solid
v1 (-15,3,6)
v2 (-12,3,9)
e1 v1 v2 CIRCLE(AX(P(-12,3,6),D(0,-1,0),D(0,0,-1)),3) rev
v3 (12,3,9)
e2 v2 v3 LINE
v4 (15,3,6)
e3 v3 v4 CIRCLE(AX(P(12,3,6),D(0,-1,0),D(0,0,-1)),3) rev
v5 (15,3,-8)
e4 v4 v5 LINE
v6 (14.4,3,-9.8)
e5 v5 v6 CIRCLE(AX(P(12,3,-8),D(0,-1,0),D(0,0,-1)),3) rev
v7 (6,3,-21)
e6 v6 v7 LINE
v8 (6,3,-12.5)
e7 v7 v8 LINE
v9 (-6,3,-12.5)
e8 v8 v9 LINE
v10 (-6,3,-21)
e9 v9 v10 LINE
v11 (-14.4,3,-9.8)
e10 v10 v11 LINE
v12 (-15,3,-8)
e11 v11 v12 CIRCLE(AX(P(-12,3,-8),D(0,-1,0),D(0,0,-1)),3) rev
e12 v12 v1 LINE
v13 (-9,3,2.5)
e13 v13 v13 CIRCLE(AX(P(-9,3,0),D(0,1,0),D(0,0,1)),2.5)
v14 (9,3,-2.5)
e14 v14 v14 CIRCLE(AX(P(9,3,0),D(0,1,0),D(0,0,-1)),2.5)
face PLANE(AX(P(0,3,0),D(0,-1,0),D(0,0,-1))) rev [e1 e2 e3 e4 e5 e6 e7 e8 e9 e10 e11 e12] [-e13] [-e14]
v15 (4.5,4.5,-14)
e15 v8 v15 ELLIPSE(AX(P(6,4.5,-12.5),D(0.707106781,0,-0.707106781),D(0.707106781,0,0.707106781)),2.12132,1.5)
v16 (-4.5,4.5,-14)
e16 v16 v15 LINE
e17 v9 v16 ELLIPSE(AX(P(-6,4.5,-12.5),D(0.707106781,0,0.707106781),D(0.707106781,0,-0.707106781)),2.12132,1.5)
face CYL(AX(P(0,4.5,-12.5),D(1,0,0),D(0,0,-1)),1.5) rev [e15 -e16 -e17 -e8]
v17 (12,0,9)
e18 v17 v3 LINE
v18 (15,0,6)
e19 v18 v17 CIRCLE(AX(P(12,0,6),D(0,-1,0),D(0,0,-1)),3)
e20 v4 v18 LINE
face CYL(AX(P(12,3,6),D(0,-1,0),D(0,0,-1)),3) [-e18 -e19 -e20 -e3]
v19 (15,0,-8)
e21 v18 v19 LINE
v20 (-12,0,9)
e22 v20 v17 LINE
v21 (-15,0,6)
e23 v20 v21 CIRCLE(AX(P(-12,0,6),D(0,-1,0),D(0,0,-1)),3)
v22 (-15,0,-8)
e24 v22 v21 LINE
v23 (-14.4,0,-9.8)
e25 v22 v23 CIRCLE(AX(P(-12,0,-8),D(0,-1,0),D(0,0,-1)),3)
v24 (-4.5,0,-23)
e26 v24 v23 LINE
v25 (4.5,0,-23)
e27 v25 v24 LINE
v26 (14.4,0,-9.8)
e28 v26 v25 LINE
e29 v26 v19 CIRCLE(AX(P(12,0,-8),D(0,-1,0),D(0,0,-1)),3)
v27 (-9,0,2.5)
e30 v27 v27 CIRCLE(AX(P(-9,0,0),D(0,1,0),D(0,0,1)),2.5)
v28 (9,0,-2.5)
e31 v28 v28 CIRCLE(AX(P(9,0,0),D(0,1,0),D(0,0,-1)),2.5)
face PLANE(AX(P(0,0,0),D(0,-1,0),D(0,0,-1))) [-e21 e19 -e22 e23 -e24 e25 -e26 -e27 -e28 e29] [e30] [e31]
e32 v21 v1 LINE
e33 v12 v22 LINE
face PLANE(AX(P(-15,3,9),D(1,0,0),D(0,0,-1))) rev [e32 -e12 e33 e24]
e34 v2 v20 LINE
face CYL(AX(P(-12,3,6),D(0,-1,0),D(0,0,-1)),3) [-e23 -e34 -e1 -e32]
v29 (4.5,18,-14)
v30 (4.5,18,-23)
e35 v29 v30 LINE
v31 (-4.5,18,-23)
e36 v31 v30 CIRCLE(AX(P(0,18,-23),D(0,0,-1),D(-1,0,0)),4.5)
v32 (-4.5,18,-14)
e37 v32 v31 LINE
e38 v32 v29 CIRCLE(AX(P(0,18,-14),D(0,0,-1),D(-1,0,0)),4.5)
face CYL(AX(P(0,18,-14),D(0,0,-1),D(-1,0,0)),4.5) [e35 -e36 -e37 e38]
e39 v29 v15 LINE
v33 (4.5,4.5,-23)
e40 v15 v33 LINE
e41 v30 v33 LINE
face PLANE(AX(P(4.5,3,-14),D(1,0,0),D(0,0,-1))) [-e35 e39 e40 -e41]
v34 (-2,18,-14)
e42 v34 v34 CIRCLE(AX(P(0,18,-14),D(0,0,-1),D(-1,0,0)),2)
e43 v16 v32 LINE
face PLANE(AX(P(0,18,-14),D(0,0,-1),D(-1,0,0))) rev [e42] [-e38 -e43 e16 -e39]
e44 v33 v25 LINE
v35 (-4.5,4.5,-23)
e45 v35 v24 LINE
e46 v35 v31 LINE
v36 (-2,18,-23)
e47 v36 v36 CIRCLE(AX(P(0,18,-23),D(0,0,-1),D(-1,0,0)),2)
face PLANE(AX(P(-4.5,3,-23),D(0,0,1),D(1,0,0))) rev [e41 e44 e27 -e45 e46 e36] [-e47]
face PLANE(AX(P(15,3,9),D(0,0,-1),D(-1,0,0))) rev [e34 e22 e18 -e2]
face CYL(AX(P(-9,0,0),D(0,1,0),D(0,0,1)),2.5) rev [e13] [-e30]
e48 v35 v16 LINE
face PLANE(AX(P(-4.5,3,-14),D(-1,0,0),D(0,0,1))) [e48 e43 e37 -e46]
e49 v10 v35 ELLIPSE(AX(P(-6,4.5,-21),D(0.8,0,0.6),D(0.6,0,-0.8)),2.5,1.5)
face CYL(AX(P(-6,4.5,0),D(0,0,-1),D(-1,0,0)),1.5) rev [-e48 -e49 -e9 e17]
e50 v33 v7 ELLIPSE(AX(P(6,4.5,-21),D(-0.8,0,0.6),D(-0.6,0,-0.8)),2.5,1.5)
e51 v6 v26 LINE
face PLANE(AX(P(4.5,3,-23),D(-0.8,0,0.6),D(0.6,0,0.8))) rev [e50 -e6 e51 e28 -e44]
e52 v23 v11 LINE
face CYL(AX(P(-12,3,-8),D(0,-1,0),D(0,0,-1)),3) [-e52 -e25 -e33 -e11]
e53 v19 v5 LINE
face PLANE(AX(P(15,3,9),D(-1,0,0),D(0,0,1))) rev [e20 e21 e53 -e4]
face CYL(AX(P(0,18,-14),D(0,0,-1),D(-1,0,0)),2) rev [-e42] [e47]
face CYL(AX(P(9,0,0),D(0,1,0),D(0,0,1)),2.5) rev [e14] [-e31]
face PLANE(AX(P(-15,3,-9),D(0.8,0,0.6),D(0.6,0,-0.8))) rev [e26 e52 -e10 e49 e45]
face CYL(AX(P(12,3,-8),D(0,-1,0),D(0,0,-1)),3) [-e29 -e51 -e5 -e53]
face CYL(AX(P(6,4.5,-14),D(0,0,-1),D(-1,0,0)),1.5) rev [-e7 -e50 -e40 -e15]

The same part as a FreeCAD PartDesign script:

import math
import FreeCAD as App
import Part
import Sketcher
Q = App.Units.Quantity


def edges_at(feature, points):
    """Names of the edges that pass closest to the given points."""
    edges = feature.Shape.Edges
    near = lambda p: min(range(len(edges)), key=lambda i: edges[i].distToShape(Part.Vertex(*p))[0])
    return sorted({f"Edge{near(p) + 1}" for p in points})

doc = App.newDocument("Part")
body = doc.addObject("PartDesign::Body", "Body")

# Sketch on XZ plane
sketch1 = body.newObject("Sketcher::SketchObject", "Sketch")
sketch1.AttachmentSupport = (doc.getObject("XZ_Plane"), [""])
sketch1.MapMode = "FlatFace"
sketch1.addGeometry(Part.LineSegment(App.Vector(-4, -23, 0), App.Vector(-15, -9, 0)), False)
sketch1.addGeometry(Part.LineSegment(App.Vector(-15, -9, 0), App.Vector(-15, 9, 0)), False)
sketch1.addGeometry(Part.LineSegment(App.Vector(-15, 9, 0), App.Vector(15, 9, 0)), False)
sketch1.addGeometry(Part.LineSegment(App.Vector(15, 9, 0), App.Vector(15, -9, 0)), False)
sketch1.addGeometry(Part.LineSegment(App.Vector(15, -9, 0), App.Vector(4, -23, 0)), False)
sketch1.addGeometry(Part.LineSegment(App.Vector(4, -23, 0), App.Vector(-4, -23, 0)), False)
sketch1.addConstraint(Sketcher.Constraint("Coincident", 0, 2, 1, 1))
sketch1.addConstraint(Sketcher.Constraint("Coincident", 1, 2, 2, 1))
sketch1.addConstraint(Sketcher.Constraint("Coincident", 2, 2, 3, 1))
sketch1.addConstraint(Sketcher.Constraint("Coincident", 3, 2, 4, 1))
sketch1.addConstraint(Sketcher.Constraint("Coincident", 4, 2, 5, 1))
sketch1.addConstraint(Sketcher.Constraint("Coincident", 5, 2, 0, 1))
sketch1.addConstraint(Sketcher.Constraint("Vertical", 1))
sketch1.addConstraint(Sketcher.Constraint("Horizontal", 2))
sketch1.addConstraint(Sketcher.Constraint("Vertical", 3))
sketch1.addConstraint(Sketcher.Constraint("Horizontal", 5))
sketch1.addConstraint(Sketcher.Constraint("Symmetric", 0, 2, 2, 2, -1, 1))
sketch1.addConstraint(Sketcher.Constraint("Horizontal", 0, 2, 3, 2))
sketch1.addConstraint(Sketcher.Constraint("Equal", 0, 4))
sketch1.addConstraint(Sketcher.Constraint("DistanceX", 2, 1, 2, 2, Q("30 mm")))
sketch1.addConstraint(Sketcher.Constraint("DistanceX", 5, 2, 5, 1, Q("9 mm")))
sketch1.addConstraint(Sketcher.Constraint("DistanceY", 1, 1, 1, 2, Q("18 mm")))
sketch1.addConstraint(Sketcher.Constraint("DistanceY", 4, 2, -1, 1, Q("23 mm")))
pad1 = body.newObject("PartDesign::Pad", "Pad")
pad1.Profile = sketch1
pad1.Length = 3
pad1.Reversed = True

# Sketch on XY plane
sketch2 = body.newObject("Sketcher::SketchObject", "Sketch001")
sketch2.AttachmentSupport = (doc.getObject("XY_Plane"), [""])
sketch2.MapMode = "FlatFace"
sketch2.AttachmentOffset = App.Placement(App.Vector(0, 0, -23), App.Rotation())
sketch2.addGeometry(Part.LineSegment(App.Vector(4.5, 18, 0), App.Vector(4.5, 3, 0)), False)
sketch2.addGeometry(Part.LineSegment(App.Vector(4.5, 3, 0), App.Vector(-4.5, 3, 0)), False)
sketch2.addGeometry(Part.LineSegment(App.Vector(-4.5, 3, 0), App.Vector(-4.5, 18, 0)), False)
sketch2.addGeometry(Part.ArcOfCircle(Part.Circle(App.Vector(0, 18, 0), App.Vector(0, 0, 1), 4.5), math.radians(0), math.radians(180)), False)
sketch2.addGeometry(Part.Circle(App.Vector(0, 18, 0), App.Vector(0, 0, 1), 2), False)
sketch2.addConstraint(Sketcher.Constraint("Coincident", 0, 2, 1, 1))
sketch2.addConstraint(Sketcher.Constraint("Coincident", 1, 2, 2, 1))
sketch2.addConstraint(Sketcher.Constraint("Tangent", 2, 2, 3, 2))
sketch2.addConstraint(Sketcher.Constraint("Tangent", 3, 1, 0, 1))
sketch2.addConstraint(Sketcher.Constraint("Vertical", 0))
sketch2.addConstraint(Sketcher.Constraint("Horizontal", 1))
sketch2.addConstraint(Sketcher.Constraint("Vertical", 2))
sketch2.addConstraint(Sketcher.Constraint("Coincident", 4, 3, 3, 3))
sketch2.addConstraint(Sketcher.Constraint("PointOnObject", 3, 3, -2))
sketch2.addConstraint(Sketcher.Constraint("Diameter", 4, Q("4 mm")))
sketch2.addConstraint(Sketcher.Constraint("Radius", 3, Q("4.5 mm")))
sketch2.addConstraint(Sketcher.Constraint("DistanceY", 0, 2, 0, 1, Q("15 mm")))
sketch2.addConstraint(Sketcher.Constraint("DistanceY", -1, 1, 3, 3, Q("18 mm")))
pad2 = body.newObject("PartDesign::Pad", "Pad001")
pad2.Profile = sketch2
pad2.Length = 9
doc.recompute()

fillet = body.newObject("PartDesign::Fillet", "Fillet")
fillet.Base = (pad2, edges_at(pad2, [(0, 3, -14), (-4.5, 3, -18.5), (4.5, 3, -18.5)]))
fillet.Radius = 1.5
doc.recompute()

fillet2 = body.newObject("PartDesign::Fillet", "Fillet001")
fillet2.Base = (fillet, edges_at(fillet, [
    (-15, 1.5, -9),
    (15, 1.5, -9),
    (15, 1.5, 9),
    (-15, 1.5, 9),
]))
fillet2.Radius = 3

# Sketch on XZ plane
sketch3 = body.newObject("Sketcher::SketchObject", "Sketch002")
sketch3.AttachmentSupport = (doc.getObject("XZ_Plane"), [""])
sketch3.MapMode = "FlatFace"
sketch3.AttachmentOffset = App.Placement(App.Vector(0, 0, -3), App.Rotation())
sketch3.addGeometry(Part.Circle(App.Vector(-9, 0, 0), App.Vector(0, 0, 1), 2.5), False)
sketch3.addGeometry(Part.Circle(App.Vector(9, 0, 0), App.Vector(0, 0, 1), 2.5), False)
sketch3.addConstraint(Sketcher.Constraint("Equal", 0, 1))
sketch3.addConstraint(Sketcher.Constraint("Symmetric", 0, 3, 1, 3, -1, 1))
sketch3.addConstraint(Sketcher.Constraint("PointOnObject", 0, 3, -1))
sketch3.addConstraint(Sketcher.Constraint("Diameter", 0, Q("5 mm")))
sketch3.addConstraint(Sketcher.Constraint("DistanceX", 0, 3, -1, 1, Q("9 mm")))
pocket1 = body.newObject("PartDesign::Pocket", "Pocket")
pocket1.Profile = sketch3
pocket1.Type = "ThroughAll"
pocket1.Reversed = True

doc.recompute()
